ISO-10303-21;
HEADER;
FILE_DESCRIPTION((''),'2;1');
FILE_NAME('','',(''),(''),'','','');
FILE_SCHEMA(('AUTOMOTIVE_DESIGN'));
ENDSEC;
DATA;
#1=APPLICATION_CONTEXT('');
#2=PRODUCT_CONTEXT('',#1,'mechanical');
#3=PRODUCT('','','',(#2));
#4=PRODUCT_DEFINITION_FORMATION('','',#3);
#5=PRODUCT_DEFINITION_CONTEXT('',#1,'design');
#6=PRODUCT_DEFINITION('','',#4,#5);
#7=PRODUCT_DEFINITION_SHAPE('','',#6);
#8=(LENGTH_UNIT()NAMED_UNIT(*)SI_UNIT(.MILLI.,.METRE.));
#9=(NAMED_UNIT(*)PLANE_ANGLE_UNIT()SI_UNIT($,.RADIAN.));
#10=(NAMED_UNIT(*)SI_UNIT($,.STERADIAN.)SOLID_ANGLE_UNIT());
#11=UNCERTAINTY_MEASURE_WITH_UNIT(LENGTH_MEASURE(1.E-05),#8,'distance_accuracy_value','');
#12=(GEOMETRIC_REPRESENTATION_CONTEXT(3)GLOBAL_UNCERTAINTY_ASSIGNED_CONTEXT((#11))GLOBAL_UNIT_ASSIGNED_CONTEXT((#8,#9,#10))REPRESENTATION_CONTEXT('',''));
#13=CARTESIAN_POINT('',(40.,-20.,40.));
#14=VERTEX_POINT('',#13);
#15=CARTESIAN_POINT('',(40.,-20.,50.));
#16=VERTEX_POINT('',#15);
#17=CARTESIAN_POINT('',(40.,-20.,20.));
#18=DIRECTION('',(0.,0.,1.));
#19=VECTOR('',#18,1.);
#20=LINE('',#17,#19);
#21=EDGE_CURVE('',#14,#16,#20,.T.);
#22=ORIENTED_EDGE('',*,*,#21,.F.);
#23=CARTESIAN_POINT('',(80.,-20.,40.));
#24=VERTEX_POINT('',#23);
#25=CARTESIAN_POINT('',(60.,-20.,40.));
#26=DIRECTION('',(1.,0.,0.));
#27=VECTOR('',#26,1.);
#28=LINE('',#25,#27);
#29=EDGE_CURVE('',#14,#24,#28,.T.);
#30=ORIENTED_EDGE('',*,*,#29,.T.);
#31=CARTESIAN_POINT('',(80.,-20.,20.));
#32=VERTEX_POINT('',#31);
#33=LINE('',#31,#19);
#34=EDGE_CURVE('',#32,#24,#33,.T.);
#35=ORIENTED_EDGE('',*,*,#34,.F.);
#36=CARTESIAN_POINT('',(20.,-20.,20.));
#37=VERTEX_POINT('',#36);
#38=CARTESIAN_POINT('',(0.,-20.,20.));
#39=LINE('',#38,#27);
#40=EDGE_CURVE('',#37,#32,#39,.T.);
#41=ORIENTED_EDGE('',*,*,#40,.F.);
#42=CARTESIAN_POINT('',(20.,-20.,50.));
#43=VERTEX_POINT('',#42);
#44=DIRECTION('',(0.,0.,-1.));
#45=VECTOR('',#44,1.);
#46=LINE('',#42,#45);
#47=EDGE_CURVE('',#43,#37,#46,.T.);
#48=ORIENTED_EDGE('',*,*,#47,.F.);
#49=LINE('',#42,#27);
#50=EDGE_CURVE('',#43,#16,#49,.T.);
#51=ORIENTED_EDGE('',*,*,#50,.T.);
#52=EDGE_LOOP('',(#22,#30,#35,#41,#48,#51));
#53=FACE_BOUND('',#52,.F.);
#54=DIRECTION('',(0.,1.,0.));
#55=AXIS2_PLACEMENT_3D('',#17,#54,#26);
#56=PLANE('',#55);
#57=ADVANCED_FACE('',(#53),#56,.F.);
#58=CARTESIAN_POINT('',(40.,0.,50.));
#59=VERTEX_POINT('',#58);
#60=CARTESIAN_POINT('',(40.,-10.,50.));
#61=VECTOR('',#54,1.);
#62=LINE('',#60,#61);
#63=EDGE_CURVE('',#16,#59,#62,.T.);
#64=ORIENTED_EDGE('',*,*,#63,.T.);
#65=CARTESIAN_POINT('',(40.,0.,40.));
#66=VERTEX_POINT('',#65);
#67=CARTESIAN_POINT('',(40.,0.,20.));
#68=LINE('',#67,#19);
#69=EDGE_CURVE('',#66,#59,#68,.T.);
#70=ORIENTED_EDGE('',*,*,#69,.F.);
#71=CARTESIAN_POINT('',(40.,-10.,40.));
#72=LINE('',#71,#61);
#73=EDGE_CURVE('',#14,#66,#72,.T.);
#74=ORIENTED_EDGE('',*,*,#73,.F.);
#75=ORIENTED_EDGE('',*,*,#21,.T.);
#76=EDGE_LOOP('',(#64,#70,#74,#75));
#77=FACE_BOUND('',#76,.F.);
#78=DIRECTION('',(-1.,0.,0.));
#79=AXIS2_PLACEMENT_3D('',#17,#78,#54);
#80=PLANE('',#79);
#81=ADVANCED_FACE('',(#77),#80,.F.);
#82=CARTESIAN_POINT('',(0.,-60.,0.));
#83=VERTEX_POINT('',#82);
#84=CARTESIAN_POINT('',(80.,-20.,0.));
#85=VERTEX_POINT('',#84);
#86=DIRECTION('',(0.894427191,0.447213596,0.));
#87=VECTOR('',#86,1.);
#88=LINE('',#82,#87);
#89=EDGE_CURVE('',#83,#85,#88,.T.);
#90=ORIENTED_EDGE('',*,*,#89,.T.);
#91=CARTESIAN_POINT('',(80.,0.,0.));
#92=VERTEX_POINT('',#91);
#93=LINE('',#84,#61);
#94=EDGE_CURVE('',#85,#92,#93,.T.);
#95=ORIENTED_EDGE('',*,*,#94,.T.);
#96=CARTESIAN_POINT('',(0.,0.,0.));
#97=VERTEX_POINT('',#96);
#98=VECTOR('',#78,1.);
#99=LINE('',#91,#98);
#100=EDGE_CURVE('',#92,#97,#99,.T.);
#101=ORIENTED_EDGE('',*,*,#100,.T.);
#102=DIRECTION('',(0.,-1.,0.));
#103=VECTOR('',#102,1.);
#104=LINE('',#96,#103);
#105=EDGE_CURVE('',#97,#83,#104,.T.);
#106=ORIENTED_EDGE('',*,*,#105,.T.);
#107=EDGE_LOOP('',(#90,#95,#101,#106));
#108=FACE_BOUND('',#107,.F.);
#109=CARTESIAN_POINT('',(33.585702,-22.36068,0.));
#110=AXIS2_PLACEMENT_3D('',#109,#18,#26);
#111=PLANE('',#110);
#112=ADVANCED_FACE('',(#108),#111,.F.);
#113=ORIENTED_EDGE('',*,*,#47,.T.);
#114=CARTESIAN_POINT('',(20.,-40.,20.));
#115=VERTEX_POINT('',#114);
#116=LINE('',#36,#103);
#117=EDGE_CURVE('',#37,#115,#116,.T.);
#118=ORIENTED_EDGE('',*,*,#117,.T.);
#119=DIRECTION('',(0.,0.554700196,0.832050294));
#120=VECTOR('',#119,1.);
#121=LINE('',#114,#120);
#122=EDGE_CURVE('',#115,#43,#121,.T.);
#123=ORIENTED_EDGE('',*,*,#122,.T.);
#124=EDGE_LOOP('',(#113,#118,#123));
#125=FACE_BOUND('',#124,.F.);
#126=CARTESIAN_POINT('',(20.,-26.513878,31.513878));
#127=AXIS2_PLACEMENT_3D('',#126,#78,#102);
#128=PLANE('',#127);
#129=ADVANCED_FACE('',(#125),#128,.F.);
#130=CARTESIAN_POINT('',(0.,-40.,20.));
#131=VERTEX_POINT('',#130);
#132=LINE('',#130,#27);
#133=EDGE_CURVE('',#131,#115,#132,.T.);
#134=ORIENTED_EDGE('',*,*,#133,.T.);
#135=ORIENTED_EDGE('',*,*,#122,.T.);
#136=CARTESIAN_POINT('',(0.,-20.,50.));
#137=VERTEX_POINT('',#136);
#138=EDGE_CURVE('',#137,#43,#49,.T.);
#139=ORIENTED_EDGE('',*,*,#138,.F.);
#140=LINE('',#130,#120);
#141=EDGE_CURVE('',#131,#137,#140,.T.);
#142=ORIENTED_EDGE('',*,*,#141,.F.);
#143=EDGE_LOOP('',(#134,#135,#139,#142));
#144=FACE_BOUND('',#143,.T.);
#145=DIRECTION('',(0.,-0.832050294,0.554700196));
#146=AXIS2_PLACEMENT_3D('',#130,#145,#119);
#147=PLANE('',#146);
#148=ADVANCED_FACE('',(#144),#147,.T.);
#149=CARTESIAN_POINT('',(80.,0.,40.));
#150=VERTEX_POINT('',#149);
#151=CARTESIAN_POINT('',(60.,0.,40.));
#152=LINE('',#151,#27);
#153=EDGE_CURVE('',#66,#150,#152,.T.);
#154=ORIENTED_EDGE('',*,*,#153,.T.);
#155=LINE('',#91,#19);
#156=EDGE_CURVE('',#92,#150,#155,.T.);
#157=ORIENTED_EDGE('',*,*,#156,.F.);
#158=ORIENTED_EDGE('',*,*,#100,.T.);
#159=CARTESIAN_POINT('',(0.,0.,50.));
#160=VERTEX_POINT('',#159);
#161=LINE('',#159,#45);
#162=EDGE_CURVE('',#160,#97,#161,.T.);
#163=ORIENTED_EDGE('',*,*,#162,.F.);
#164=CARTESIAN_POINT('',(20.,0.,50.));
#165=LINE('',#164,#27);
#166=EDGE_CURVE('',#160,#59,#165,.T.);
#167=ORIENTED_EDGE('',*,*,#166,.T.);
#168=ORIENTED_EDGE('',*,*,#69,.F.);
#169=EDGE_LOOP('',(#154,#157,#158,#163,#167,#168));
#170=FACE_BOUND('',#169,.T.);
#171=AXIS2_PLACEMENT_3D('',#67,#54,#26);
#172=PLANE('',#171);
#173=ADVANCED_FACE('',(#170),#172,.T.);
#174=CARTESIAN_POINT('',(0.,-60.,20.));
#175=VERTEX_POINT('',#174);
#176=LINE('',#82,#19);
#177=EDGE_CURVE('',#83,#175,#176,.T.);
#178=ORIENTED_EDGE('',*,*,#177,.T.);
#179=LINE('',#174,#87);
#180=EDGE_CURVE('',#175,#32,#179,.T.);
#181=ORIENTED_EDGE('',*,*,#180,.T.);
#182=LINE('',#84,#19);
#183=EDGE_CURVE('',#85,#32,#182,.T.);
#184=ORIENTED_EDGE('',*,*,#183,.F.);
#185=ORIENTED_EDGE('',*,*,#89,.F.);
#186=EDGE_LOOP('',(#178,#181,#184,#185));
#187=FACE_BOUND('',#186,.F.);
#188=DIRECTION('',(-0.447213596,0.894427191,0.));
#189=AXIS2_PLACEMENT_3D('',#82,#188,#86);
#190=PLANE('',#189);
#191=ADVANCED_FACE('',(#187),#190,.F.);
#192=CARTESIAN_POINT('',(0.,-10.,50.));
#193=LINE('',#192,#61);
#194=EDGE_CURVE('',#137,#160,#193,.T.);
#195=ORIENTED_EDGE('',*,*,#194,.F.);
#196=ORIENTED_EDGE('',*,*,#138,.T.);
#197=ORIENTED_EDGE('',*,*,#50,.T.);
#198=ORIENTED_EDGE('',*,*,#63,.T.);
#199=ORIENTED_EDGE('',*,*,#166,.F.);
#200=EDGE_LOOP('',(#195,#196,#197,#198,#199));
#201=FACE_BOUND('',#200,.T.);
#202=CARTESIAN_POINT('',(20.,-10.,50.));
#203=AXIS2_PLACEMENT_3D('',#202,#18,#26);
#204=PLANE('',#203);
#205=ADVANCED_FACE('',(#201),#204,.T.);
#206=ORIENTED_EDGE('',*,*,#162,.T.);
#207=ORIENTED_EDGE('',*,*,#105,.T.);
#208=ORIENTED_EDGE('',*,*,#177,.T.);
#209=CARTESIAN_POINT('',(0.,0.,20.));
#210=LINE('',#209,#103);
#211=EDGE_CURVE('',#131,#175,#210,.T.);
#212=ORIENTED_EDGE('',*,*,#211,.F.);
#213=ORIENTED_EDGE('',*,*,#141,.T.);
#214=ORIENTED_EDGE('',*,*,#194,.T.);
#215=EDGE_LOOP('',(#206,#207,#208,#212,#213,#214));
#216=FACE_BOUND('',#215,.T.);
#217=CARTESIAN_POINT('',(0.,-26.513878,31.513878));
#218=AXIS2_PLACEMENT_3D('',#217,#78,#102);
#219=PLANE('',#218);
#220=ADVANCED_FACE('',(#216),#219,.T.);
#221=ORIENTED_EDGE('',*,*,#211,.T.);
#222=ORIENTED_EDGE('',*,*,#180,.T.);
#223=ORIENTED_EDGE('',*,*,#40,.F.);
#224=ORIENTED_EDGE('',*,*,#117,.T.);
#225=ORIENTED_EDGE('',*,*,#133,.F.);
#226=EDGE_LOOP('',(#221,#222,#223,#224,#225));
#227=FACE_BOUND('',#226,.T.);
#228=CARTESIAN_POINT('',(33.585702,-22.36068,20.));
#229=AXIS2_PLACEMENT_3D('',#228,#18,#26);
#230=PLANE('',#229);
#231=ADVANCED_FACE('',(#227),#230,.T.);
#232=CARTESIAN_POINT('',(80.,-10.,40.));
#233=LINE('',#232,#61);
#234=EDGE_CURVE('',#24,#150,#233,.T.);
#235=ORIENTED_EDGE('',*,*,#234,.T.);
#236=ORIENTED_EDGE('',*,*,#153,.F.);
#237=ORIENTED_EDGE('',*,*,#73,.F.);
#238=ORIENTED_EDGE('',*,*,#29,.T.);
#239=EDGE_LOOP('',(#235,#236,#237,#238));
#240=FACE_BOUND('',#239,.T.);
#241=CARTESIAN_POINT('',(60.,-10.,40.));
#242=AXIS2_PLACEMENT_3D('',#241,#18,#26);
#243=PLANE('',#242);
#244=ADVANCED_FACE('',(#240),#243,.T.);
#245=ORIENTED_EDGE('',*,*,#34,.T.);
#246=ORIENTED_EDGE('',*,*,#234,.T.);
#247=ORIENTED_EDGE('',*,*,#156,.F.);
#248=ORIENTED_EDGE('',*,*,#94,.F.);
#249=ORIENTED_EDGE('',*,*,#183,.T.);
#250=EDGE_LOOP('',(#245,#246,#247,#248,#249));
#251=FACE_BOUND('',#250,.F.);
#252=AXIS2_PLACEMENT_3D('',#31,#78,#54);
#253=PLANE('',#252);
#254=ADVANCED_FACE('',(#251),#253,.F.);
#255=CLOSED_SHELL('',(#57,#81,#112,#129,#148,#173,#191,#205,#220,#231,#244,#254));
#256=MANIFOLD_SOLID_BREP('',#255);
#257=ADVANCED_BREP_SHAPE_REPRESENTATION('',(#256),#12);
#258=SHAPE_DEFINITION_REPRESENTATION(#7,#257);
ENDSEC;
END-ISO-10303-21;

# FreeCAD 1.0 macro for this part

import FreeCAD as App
import Part
import Sketcher

V = App.Vector

doc = App.newDocument("Part")
body = doc.addObject("PartDesign::Body", "Body")

# Sketch on XY plane
sketch1 = body.newObject("Sketcher::SketchObject", "Sketch")
sketch1.AttachmentSupport = (doc.getObject("XY_Plane"), [""])
sketch1.MapMode = "FlatFace"
sketch1.addGeometry([
    Part.LineSegment(V(80, 0, 0), V(0, 0, 0)),
    Part.LineSegment(V(0, 0, 0), V(0, -60, 0)),
    Part.LineSegment(V(0, -60, 0), V(80, -20, 0)),
    Part.LineSegment(V(80, -20, 0), V(80, 0, 0)),
], False)
sketch1.addConstraint([
    Sketcher.Constraint("Coincident", 0, 2, 1, 1),
    Sketcher.Constraint("Coincident", 1, 2, 2, 1),
    Sketcher.Constraint("Coincident", 2, 2, 3, 1),
    Sketcher.Constraint("Coincident", 3, 2, 0, 1),
    Sketcher.Constraint("Horizontal", 0),
    Sketcher.Constraint("Vertical", 1),
    Sketcher.Constraint("Vertical", 3),
    Sketcher.Constraint("Coincident", 0, 2, -1, 1),
    Sketcher.Constraint("DistanceX", 0, 2, 0, 1, 80.0),
    Sketcher.Constraint("DistanceY", 1, 2, 1, 1, 60.0),
    Sketcher.Constraint("DistanceY", 3, 1, 3, 2, 20.0),
])
pad1 = body.newObject("PartDesign::Pad", "Pad")
pad1.Profile = sketch1
pad1.Length = 20

# Sketch on XY plane
sketch2 = body.newObject("Sketcher::SketchObject", "Sketch001")
sketch2.AttachmentSupport = (doc.getObject("XY_Plane"), [""])
sketch2.MapMode = "FlatFace"
sketch2.AttachmentOffset = App.Placement(V(0, 0, 20), App.Rotation())
sketch2.addGeometry([
    Part.LineSegment(V(0, 0, 0), V(0, -20, 0)),
    Part.LineSegment(V(0, -20, 0), V(40, -20, 0)),
    Part.LineSegment(V(40, -20, 0), V(40, 0, 0)),
    Part.LineSegment(V(40, 0, 0), V(0, 0, 0)),
], False)
sketch2.addConstraint([
    Sketcher.Constraint("Coincident", 0, 2, 1, 1),
    Sketcher.Constraint("Coincident", 1, 2, 2, 1),
    Sketcher.Constraint("Coincident", 2, 2, 3, 1),
    Sketcher.Constraint("Coincident", 3, 2, 0, 1),
    Sketcher.Constraint("Vertical", 0),
    Sketcher.Constraint("Horizontal", 1),
    Sketcher.Constraint("Vertical", 2),
    Sketcher.Constraint("Horizontal", 3),
    Sketcher.Constraint("Coincident", 3, 2, -1, 1),
    Sketcher.Constraint("DistanceX", 1, 1, 1, 2, 40.0),
    Sketcher.Constraint("DistanceY", 0, 2, 0, 1, 20.0),
])
pad2 = body.newObject("PartDesign::Pad", "Pad001")
pad2.Profile = sketch2
pad2.Length = 30

# Sketch on XY plane
sketch3 = body.newObject("Sketcher::SketchObject", "Sketch002")
sketch3.AttachmentSupport = (doc.getObject("XY_Plane"), [""])
sketch3.MapMode = "FlatFace"
sketch3.AttachmentOffset = App.Placement(V(0, 0, 20), App.Rotation())
sketch3.addGeometry([
    Part.LineSegment(V(40, 0, 0), V(40, -20, 0)),
    Part.LineSegment(V(40, -20, 0), V(80, -20, 0)),
    Part.LineSegment(V(80, -20, 0), V(80, 0, 0)),
    Part.LineSegment(V(80, 0, 0), V(40, 0, 0)),
], False)
sketch3.addConstraint([
    Sketcher.Constraint("Coincident", 0, 2, 1, 1),
    Sketcher.Constraint("Coincident", 1, 2, 2, 1),
    Sketcher.Constraint("Coincident", 2, 2, 3, 1),
    Sketcher.Constraint("Coincident", 3, 2, 0, 1),
    Sketcher.Constraint("Vertical", 0),
    Sketcher.Constraint("Horizontal", 1),
    Sketcher.Constraint("Vertical", 2),
    Sketcher.Constraint("Horizontal", 3),
    Sketcher.Constraint("PointOnObject", 2, 2, -1),
    Sketcher.Constraint("DistanceX", 1, 1, 1, 2, 40.0),
    Sketcher.Constraint("DistanceY", 0, 2, 0, 1, 20.0),
    Sketcher.Constraint("DistanceX", -1, 1, 0, 2, 40.0),
])
pad3 = body.newObject("PartDesign::Pad", "Pad002")
pad3.Profile = sketch3
pad3.Length = 20

# Sketch on YZ plane
sketch4 = body.newObject("Sketcher::SketchObject", "Sketch003")
sketch4.AttachmentSupport = (doc.getObject("YZ_Plane"), [""])
sketch4.MapMode = "FlatFace"
sketch4.addGeometry([
    Part.LineSegment(V(-40, 20, 0), V(-20, 50, 0)),
    Part.LineSegment(V(-20, 50, 0), V(-20, 20, 0)),
    Part.LineSegment(V(-20, 20, 0), V(-40, 20, 0)),
], False)
sketch4.addConstraint([
    Sketcher.Constraint("Coincident", 0, 2, 1, 1),
    Sketcher.Constraint("Coincident", 1, 2, 2, 1),
    Sketcher.Constraint("Coincident", 2, 2, 0, 1),
    Sketcher.Constraint("Vertical", 1),
    Sketcher.Constraint("Horizontal", 2),
    Sketcher.Constraint("DistanceX", 2, 2, 2, 1, 20.0),
    Sketcher.Constraint("DistanceY", 1, 2, 1, 1, 30.0),
    Sketcher.Constraint("DistanceX", 0, 2, -1, 1, 20.0),
    Sketcher.Constraint("DistanceY", -1, 1, 0, 2, 50.0),
])
pad4 = body.newObject("PartDesign::Pad", "Pad003")
pad4.Profile = sketch4
pad4.Length = 20

doc.recompute()
